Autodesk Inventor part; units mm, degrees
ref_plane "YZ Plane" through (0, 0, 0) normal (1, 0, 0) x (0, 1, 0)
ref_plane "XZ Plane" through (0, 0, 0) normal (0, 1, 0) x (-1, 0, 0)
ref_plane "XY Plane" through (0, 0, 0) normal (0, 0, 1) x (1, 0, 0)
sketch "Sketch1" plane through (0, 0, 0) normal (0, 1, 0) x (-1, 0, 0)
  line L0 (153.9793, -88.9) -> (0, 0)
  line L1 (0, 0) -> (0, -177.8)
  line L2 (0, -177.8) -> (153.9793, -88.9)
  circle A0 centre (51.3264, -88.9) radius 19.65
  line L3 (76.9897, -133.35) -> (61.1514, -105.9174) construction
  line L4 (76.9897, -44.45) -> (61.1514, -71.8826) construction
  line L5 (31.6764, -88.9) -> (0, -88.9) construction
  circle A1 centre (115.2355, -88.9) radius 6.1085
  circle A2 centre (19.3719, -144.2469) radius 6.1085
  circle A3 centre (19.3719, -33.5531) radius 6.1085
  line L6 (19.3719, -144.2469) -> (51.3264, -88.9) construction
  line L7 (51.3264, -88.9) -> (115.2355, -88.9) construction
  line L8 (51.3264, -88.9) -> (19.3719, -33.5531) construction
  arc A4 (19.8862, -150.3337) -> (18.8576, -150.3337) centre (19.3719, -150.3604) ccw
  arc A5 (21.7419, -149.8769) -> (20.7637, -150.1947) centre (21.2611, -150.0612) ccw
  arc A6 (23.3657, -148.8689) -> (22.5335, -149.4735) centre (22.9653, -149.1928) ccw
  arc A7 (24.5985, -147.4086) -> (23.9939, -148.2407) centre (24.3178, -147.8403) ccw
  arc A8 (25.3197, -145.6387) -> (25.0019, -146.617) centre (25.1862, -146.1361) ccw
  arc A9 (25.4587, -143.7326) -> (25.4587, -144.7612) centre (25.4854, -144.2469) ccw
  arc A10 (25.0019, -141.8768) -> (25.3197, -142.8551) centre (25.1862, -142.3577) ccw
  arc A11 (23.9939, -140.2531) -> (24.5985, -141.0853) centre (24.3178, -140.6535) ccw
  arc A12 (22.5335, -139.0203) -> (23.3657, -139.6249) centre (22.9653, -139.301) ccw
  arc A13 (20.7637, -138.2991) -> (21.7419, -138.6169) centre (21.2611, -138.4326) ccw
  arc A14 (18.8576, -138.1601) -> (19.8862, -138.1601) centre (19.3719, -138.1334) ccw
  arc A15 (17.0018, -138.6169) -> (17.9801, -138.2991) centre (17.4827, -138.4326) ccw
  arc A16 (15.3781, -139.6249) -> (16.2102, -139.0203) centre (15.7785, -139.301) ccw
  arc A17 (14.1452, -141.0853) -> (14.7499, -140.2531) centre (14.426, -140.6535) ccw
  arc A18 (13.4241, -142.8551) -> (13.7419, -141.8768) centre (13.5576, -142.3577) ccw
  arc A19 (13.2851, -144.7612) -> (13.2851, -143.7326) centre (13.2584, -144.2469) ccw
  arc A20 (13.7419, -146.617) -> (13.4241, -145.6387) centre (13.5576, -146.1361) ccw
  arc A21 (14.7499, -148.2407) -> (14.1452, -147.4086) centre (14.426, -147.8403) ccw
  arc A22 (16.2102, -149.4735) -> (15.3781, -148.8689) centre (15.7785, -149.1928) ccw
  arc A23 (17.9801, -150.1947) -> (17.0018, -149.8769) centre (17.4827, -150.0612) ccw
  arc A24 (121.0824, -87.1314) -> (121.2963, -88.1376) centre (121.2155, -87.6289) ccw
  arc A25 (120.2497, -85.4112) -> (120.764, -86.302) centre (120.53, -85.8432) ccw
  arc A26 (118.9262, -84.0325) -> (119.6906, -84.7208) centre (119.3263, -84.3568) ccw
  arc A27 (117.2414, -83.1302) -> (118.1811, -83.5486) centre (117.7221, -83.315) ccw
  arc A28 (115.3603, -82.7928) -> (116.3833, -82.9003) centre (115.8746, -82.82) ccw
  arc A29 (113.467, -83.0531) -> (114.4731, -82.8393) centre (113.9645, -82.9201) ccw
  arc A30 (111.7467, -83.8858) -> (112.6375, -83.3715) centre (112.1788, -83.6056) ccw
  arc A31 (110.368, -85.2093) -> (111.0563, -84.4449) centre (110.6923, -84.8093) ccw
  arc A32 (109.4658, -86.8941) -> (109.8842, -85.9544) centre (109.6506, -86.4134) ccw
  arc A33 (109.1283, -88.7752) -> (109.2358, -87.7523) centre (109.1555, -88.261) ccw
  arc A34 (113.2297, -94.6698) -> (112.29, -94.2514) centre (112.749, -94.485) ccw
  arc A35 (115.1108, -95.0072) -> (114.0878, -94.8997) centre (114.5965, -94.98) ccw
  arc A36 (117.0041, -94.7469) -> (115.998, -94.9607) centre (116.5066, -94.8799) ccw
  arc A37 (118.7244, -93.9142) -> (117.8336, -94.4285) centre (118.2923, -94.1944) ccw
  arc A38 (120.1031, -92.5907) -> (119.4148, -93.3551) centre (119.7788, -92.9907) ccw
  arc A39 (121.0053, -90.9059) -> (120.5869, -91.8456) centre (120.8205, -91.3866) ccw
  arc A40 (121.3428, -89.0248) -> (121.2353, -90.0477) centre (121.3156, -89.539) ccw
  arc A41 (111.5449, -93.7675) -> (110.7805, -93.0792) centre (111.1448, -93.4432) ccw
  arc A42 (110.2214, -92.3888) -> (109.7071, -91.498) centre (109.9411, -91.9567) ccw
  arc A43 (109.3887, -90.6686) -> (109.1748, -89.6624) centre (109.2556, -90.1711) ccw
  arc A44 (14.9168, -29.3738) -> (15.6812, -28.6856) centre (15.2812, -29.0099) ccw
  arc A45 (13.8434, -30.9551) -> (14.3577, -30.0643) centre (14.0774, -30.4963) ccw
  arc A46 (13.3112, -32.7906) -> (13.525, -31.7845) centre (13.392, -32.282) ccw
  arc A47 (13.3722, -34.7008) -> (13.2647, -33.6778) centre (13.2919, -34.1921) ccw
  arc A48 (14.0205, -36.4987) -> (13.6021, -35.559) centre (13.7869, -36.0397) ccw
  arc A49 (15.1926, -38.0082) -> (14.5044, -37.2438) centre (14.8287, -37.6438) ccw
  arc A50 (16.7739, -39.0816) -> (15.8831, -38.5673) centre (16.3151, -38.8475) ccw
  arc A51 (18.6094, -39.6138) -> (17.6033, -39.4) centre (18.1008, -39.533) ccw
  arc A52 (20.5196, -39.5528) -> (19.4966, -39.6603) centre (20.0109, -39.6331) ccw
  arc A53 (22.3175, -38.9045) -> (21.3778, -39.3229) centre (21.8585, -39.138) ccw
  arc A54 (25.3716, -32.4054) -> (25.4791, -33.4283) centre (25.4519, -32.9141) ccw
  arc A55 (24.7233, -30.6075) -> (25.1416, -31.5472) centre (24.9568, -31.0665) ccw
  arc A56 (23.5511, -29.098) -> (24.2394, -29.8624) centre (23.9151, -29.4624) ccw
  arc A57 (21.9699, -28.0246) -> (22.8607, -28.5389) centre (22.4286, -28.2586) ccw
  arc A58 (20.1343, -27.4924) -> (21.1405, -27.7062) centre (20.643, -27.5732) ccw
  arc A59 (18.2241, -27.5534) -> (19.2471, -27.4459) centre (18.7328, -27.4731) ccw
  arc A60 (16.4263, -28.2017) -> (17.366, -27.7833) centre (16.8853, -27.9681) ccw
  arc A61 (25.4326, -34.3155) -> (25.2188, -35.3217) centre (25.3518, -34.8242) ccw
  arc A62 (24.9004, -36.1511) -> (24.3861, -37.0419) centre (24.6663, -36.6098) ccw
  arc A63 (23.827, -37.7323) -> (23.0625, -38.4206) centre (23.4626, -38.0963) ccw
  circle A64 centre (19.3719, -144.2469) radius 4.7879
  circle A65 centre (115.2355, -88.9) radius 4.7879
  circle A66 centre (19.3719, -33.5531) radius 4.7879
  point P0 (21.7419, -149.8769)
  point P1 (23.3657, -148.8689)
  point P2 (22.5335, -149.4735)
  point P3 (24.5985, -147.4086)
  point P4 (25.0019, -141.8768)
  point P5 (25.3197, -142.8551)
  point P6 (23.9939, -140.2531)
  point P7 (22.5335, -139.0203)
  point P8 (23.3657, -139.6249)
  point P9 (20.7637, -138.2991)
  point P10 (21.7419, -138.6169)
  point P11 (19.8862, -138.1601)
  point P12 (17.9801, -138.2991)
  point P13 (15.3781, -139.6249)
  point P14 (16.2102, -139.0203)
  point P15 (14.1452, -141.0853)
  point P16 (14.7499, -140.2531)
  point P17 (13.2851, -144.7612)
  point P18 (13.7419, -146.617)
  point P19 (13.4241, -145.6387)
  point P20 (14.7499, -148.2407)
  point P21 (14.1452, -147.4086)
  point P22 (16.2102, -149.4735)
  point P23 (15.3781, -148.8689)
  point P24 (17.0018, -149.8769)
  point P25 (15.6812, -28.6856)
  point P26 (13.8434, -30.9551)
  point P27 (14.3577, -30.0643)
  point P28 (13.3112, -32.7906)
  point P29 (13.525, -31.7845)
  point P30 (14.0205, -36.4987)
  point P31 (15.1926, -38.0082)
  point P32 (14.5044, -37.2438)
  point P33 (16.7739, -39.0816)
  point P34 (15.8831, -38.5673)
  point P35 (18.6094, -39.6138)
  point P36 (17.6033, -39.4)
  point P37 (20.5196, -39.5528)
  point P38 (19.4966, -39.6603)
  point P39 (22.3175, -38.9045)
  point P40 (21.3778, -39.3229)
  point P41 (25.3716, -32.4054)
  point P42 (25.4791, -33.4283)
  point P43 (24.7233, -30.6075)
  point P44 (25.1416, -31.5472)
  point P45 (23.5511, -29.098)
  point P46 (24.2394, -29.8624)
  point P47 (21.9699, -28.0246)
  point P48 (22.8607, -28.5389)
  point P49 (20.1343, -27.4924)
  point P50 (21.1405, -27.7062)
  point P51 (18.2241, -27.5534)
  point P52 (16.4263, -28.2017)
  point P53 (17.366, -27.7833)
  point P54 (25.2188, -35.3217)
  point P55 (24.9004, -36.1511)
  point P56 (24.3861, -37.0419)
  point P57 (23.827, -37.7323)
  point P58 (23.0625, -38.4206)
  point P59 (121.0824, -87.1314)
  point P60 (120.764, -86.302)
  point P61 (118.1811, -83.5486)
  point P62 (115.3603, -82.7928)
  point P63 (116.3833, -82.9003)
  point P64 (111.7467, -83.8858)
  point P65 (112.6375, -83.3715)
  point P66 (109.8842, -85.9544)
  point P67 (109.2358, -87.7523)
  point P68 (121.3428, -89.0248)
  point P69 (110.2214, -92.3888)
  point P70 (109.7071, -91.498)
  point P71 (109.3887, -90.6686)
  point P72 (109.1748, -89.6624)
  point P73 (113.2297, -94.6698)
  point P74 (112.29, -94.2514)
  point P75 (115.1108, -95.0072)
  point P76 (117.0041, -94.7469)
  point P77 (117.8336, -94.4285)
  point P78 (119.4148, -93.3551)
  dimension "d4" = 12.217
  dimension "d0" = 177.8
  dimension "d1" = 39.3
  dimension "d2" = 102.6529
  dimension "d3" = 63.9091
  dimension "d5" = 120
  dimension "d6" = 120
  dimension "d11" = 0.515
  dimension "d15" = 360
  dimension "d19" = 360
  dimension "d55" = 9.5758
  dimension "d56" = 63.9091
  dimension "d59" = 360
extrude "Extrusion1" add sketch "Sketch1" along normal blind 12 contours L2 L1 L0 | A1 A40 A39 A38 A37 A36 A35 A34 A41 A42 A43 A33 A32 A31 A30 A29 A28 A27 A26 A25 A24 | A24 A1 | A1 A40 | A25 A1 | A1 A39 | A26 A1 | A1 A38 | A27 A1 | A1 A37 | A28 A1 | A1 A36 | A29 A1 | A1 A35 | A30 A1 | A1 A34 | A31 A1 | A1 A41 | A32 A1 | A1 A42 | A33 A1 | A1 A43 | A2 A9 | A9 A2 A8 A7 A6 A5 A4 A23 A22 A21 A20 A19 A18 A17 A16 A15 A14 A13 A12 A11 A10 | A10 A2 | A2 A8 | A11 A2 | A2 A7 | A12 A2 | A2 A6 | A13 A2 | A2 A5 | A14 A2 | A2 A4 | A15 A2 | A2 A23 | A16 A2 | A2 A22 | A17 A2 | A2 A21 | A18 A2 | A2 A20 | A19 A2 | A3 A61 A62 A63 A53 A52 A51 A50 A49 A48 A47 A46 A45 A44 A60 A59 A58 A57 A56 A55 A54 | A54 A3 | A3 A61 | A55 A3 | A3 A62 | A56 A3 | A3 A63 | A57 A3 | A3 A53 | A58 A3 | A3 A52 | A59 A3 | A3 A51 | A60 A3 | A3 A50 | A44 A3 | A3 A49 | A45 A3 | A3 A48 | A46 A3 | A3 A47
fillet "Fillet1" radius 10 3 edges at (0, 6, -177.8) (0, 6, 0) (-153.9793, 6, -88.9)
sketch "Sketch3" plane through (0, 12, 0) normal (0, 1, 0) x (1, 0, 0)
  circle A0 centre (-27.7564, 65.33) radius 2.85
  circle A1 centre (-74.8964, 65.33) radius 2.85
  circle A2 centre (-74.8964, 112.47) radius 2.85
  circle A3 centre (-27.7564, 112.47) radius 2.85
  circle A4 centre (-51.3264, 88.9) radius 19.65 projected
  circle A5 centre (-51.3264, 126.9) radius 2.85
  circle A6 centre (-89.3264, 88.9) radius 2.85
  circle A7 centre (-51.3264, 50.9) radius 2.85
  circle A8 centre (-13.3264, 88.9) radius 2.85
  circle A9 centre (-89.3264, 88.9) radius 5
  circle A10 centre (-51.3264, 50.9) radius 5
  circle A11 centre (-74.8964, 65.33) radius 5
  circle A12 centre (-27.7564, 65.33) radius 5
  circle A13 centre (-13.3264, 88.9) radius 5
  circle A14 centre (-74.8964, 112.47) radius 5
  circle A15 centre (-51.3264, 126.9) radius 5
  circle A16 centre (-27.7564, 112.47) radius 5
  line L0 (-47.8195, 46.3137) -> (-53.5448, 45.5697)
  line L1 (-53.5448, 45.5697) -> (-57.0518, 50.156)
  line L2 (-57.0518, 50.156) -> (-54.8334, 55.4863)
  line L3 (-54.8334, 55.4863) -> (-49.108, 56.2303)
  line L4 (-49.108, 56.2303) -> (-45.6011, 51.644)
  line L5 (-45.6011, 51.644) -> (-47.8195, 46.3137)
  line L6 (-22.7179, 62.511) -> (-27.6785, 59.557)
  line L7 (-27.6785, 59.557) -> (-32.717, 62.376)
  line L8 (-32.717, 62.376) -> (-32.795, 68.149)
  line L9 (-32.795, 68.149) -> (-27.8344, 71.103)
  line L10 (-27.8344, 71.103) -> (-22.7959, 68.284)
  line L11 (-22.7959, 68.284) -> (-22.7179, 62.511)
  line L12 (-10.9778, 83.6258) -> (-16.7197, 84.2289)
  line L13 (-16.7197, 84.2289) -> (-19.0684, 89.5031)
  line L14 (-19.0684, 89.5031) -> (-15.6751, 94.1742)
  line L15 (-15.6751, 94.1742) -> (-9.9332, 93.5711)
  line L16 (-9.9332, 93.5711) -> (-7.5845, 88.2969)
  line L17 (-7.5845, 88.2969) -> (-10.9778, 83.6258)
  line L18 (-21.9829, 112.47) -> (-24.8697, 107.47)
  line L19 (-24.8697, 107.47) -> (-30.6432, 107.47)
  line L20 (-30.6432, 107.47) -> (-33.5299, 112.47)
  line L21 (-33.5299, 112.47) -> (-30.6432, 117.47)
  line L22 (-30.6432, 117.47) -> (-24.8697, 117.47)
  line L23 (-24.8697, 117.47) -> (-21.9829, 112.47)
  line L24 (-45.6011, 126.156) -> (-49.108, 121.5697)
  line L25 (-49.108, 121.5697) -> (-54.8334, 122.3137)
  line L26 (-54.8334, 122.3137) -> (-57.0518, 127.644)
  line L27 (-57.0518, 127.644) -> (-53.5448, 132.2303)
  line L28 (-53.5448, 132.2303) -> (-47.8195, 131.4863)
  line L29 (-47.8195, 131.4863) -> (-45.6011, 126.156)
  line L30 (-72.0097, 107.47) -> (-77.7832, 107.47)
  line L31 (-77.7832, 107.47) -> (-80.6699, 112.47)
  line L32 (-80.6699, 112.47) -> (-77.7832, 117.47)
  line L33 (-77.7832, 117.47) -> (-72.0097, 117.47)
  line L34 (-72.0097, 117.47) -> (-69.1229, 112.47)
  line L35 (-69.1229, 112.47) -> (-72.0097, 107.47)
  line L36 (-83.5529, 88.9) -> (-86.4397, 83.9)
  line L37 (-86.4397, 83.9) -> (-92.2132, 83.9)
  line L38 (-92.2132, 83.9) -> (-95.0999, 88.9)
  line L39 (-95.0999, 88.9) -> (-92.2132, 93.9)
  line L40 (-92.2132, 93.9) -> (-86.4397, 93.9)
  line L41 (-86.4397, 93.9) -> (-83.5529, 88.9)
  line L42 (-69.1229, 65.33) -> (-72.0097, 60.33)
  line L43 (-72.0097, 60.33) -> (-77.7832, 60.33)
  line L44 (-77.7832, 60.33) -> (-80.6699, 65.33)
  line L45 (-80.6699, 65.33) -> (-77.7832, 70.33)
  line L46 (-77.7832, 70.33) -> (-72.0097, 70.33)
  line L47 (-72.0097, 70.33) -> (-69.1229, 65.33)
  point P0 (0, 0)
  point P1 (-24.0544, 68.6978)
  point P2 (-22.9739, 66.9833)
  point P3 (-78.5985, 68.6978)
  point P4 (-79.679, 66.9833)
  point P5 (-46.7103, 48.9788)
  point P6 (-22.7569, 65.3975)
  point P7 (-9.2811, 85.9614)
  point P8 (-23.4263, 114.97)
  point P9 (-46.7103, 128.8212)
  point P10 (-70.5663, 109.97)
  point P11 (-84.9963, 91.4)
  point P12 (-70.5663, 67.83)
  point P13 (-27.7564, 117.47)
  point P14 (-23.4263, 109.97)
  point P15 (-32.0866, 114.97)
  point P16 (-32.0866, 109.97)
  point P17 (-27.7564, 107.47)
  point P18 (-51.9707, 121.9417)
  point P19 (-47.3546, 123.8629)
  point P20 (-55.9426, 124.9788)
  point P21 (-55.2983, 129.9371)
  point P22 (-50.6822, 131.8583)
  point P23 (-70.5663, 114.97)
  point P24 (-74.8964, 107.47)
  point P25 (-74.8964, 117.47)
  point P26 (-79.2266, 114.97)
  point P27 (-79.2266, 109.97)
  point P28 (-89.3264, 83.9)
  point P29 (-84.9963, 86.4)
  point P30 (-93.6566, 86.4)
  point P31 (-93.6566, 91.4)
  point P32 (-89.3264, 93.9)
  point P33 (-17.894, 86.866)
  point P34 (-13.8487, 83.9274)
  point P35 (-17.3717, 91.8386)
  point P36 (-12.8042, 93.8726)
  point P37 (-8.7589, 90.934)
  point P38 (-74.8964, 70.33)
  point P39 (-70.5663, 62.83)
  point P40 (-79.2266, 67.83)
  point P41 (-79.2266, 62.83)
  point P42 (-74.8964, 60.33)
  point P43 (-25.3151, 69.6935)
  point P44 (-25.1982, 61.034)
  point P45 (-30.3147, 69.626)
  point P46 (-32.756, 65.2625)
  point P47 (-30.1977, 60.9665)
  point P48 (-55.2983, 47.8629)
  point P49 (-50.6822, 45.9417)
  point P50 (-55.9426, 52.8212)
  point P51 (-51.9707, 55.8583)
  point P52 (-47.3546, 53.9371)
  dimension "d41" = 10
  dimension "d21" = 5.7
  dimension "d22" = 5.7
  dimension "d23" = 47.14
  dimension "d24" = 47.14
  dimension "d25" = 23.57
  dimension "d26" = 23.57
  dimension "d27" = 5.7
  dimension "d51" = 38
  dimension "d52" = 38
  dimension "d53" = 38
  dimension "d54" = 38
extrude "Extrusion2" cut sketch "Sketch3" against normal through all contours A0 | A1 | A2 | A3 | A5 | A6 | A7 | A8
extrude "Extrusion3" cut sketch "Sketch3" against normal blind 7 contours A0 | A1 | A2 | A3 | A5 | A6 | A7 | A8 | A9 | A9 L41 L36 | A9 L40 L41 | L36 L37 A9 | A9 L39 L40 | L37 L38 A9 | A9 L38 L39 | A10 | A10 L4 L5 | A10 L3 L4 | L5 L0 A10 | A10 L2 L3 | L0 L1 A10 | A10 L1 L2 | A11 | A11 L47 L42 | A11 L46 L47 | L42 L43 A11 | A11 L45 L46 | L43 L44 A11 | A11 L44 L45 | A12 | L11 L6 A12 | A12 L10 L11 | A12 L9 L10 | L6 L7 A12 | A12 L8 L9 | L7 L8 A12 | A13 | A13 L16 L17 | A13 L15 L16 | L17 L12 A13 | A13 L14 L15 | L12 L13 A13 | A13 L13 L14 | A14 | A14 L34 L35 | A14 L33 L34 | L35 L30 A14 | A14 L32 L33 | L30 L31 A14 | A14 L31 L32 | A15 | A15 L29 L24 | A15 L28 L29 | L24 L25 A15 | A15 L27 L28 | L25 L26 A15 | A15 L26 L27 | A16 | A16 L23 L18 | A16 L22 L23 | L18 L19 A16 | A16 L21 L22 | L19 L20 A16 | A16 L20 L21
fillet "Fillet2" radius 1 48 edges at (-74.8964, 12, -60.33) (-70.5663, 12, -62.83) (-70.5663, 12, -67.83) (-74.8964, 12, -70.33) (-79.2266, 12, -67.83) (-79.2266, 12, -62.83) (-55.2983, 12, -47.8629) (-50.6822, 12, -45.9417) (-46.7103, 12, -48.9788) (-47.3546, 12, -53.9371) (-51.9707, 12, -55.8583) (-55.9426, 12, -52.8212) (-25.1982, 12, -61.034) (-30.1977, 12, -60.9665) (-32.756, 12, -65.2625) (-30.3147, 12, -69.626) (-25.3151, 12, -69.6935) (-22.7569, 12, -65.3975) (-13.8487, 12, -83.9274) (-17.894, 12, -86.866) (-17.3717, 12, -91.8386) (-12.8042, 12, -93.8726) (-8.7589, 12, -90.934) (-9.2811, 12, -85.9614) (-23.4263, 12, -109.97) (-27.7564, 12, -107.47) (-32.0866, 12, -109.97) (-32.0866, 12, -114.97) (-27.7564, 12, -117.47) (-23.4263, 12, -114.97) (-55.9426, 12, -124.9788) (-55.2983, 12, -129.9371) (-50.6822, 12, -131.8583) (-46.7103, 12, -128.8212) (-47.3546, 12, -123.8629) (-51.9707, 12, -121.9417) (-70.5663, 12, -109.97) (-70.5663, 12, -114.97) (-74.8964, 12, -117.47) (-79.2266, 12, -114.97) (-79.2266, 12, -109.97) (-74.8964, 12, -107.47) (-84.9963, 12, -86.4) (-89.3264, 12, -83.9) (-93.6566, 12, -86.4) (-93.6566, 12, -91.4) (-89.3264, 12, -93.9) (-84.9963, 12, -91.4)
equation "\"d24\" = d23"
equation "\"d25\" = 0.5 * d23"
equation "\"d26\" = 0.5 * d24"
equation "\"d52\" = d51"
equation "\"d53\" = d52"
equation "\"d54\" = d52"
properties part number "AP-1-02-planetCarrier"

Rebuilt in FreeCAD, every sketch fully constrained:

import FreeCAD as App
import Part
import Sketcher


def edges_at(feature, points):
    """Names of the edges that pass closest to the given points."""
    edges = feature.Shape.Edges
    near = lambda p: min(range(len(edges)), key=lambda i: edges[i].distToShape(Part.Vertex(*p))[0])
    return sorted({f"Edge{near(p) + 1}" for p in points})

doc = App.newDocument("Part")
body = doc.addObject("PartDesign::Body", "Body")

# Sketch on XZ plane
sketch1 = body.newObject("Sketcher::SketchObject", "Sketch")
sketch1.AttachmentSupport = (doc.getObject("XZ_Plane"), [""])
sketch1.MapMode = "FlatFace"
sketch1.addGeometry(Part.LineSegment(App.Vector(0, -177.8, 0), App.Vector(-154, -88.9, 0)), False)
sketch1.addGeometry(Part.LineSegment(App.Vector(-154, -88.9, 0), App.Vector(0, 0, 0)), False)
sketch1.addGeometry(Part.LineSegment(App.Vector(0, 0, 0), App.Vector(0, -177.8, 0)), False)
sketch1.addGeometry(Part.Circle(App.Vector(-51.3, -88.9, 0), App.Vector(0, 0, 1), 19.6), False)
sketch1.addGeometry(Part.Circle(App.Vector(-19.4, -144.2, 0), App.Vector(0, 0, 1), 4.8), False)
sketch1.addGeometry(Part.Circle(App.Vector(-115.2, -88.9, 0), App.Vector(0, 0, 1), 4.8), False)
sketch1.addGeometry(Part.Circle(App.Vector(-19.4, -33.6, 0), App.Vector(0, 0, 1), 4.8), False)
sketch1.addConstraint(Sketcher.Constraint("Coincident", 0, 2, 1, 1))
sketch1.addConstraint(Sketcher.Constraint("Coincident", 1, 2, 2, 1))
sketch1.addConstraint(Sketcher.Constraint("Coincident", 2, 2, 0, 1))
sketch1.addConstraint(Sketcher.Constraint("Vertical", 2))
sketch1.addConstraint(Sketcher.Constraint("Coincident", 1, 2, -1, 1))
sketch1.addConstraint(Sketcher.Constraint("Equal", 4, 5))
sketch1.addConstraint(Sketcher.Constraint("Equal", 5, 6))
sketch1.addConstraint(Sketcher.Constraint("Horizontal", 3, 3, 5, 3))
sketch1.addConstraint(Sketcher.Constraint("Horizontal", 5, 3, 0, 2))
sketch1.addConstraint(Sketcher.Constraint("Vertical", 4, 3, 6, 3))
sketch1.addConstraint(Sketcher.Constraint("Equal", 0, 1))
sketch1.addConstraint(Sketcher.Constraint("Diameter", 3, 39.3))
sketch1.addConstraint(Sketcher.Constraint("DistanceY", 2, 2, 2, 1, 177.8))
sketch1.addConstraint(Sketcher.Constraint("Distance", 0, 177.8))
sketch1.addConstraint(Sketcher.Constraint("Diameter", 4, 9.5758))
sketch1.addConstraint(Sketcher.Constraint("DistanceX", 5, 3, 3, 3, 63.909))
sketch1.addConstraint(Sketcher.Constraint("DistanceX", 0, 2, 3, 3, 102.653))
sketch1.addConstraint(Sketcher.Constraint("DistanceX", 4, 3, -1, 1, 19.372))
sketch1.addConstraint(Sketcher.Constraint("DistanceY", 4, 3, -1, 1, 144.247))
sketch1.addConstraint(Sketcher.Constraint("DistanceY", 6, 3, -1, 1, 33.553))
pad1 = body.newObject("PartDesign::Pad", "Pad")
pad1.Profile = sketch1
pad1.Length = 12
pad1.Reversed = True
doc.recompute()

fillet = body.newObject("PartDesign::Fillet", "Fillet")
fillet.Base = (pad1, edges_at(pad1, [(0, 6, -177.8), (0, 6, 0), (-153.979, 6, -88.9)]))
fillet.Radius = 10

# Sketch on XZ plane
sketch2 = body.newObject("Sketcher::SketchObject", "Sketch001")
sketch2.AttachmentSupport = (doc.getObject("XZ_Plane"), [""])
sketch2.MapMode = "FlatFace"
sketch2.AttachmentOffset = App.Placement(App.Vector(0, 0, -12), App.Rotation())
sketch2.addGeometry(Part.Circle(App.Vector(-27.8, -65.3, 0), App.Vector(0, 0, 1), 2.9), False)
sketch2.addGeometry(Part.Circle(App.Vector(-74.9, -65.3, 0), App.Vector(0, 0, 1), 2.9), False)
sketch2.addGeometry(Part.Circle(App.Vector(-74.9, -112.5, 0), App.Vector(0, 0, 1), 2.9), False)
sketch2.addGeometry(Part.Circle(App.Vector(-27.8, -112.5, 0), App.Vector(0, 0, 1), 2.9), False)
sketch2.addGeometry(Part.Circle(App.Vector(-51.3, -126.9, 0), App.Vector(0, 0, 1), 2.9), False)
sketch2.addGeometry(Part.Circle(App.Vector(-89.3, -88.9, 0), App.Vector(0, 0, 1), 2.9), False)
sketch2.addGeometry(Part.Circle(App.Vector(-51.3, -50.9, 0), App.Vector(0, 0, 1), 2.9), False)
sketch2.addGeometry(Part.Circle(App.Vector(-13.3, -88.9, 0), App.Vector(0, 0, 1), 2.9), False)
sketch2.addConstraint(Sketcher.Constraint("Equal", 0, 1))
sketch2.addConstraint(Sketcher.Constraint("Equal", 1, 2))
sketch2.addConstraint(Sketcher.Constraint("Equal", 2, 3))
sketch2.addConstraint(Sketcher.Constraint("Equal", 3, 4))
sketch2.addConstraint(Sketcher.Constraint("Equal", 4, 5))
sketch2.addConstraint(Sketcher.Constraint("Equal", 5, 6))
sketch2.addConstraint(Sketcher.Constraint("Equal", 6, 7))
sketch2.addConstraint(Sketcher.Constraint("Horizontal", 0, 3, 1, 3))
sketch2.addConstraint(Sketcher.Constraint("Horizontal", 2, 3, 3, 3))
sketch2.addConstraint(Sketcher.Constraint("Horizontal", 5, 3, 7, 3))
sketch2.addConstraint(Sketcher.Constraint("Vertical", 1, 3, 2, 3))
sketch2.addConstraint(Sketcher.Constraint("Vertical", 0, 3, 3, 3))
sketch2.addConstraint(Sketcher.Constraint("Vertical", 4, 3, 6, 3))
sketch2.addConstraint(Sketcher.Constraint("Diameter", 0, 5.7))
sketch2.addConstraint(Sketcher.Constraint("DistanceX", 5, 3, 4, 3, 38.0))
sketch2.addConstraint(Sketcher.Constraint("DistanceY", 4, 3, 5, 3, 38.0))
sketch2.addConstraint(Sketcher.Constraint("DistanceY", 5, 3, 6, 3, 38.0))
sketch2.addConstraint(Sketcher.Constraint("DistanceX", 4, 3, 7, 3, 38.0))
sketch2.addConstraint(Sketcher.Constraint("DistanceX", 1, 3, 0, 3, 47.14))
sketch2.addConstraint(Sketcher.Constraint("DistanceY", 2, 3, 1, 3, 47.14))
sketch2.addConstraint(Sketcher.Constraint("DistanceX", 2, 3, 4, 3, 23.57))
sketch2.addConstraint(Sketcher.Constraint("DistanceY", 2, 3, 5, 3, 23.57))
sketch2.addConstraint(Sketcher.Constraint("DistanceY", 4, 3, -1, 1, 126.9))
sketch2.addConstraint(Sketcher.Constraint("DistanceX", 0, 3, -1, 1, 27.7564))
pocket1 = body.newObject("PartDesign::Pocket", "Pocket")
pocket1.Profile = sketch2
pocket1.Type = "ThroughAll"
pocket1.Reversed = True

# Sketch on XZ plane
sketch3 = body.newObject("Sketcher::SketchObject", "Sketch002")
sketch3.AttachmentSupport = (doc.getObject("XZ_Plane"), [""])
sketch3.MapMode = "FlatFace"
sketch3.AttachmentOffset = App.Placement(App.Vector(0, 0, -12), App.Rotation())
sketch3.addGeometry(Part.LineSegment(App.Vector(-22.7179, -62.511, 0), App.Vector(-22.7959, -68.284, 0)), False)
sketch3.addGeometry(Part.LineSegment(App.Vector(-22.7959, -68.284, 0), App.Vector(-27.8344, -71.103, 0)), False)
sketch3.addGeometry(Part.LineSegment(App.Vector(-27.8344, -71.103, 0), App.Vector(-32.795, -68.149, 0)), False)
sketch3.addGeometry(Part.LineSegment(App.Vector(-32.795, -68.149, 0), App.Vector(-32.717, -62.376, 0)), False)
sketch3.addGeometry(Part.LineSegment(App.Vector(-32.717, -62.376, 0), App.Vector(-27.6785, -59.557, 0)), False)
sketch3.addGeometry(Part.LineSegment(App.Vector(-27.6785, -59.557, 0), App.Vector(-22.7179, -62.511, 0)), False)
sketch3.addGeometry(Part.LineSegment(App.Vector(-69.1229, -65.33, 0), App.Vector(-72.0097, -70.33, 0)), False)
sketch3.addGeometry(Part.LineSegment(App.Vector(-72.0097, -70.33, 0), App.Vector(-77.7832, -70.33, 0)), False)
sketch3.addGeometry(Part.LineSegment(App.Vector(-77.7832, -70.33, 0), App.Vector(-80.6699, -65.33, 0)), False)
sketch3.addGeometry(Part.LineSegment(App.Vector(-80.6699, -65.33, 0), App.Vector(-77.7832, -60.33, 0)), False)
sketch3.addGeometry(Part.LineSegment(App.Vector(-77.7832, -60.33, 0), App.Vector(-72.0097, -60.33, 0)), False)
sketch3.addGeometry(Part.LineSegment(App.Vector(-72.0097, -60.33, 0), App.Vector(-69.1229, -65.33, 0)), False)
sketch3.addGeometry(Part.LineSegment(App.Vector(-69.1229, -112.47, 0), App.Vector(-72.0097, -117.47, 0)), False)
sketch3.addGeometry(Part.LineSegment(App.Vector(-72.0097, -117.47, 0), App.Vector(-77.7832, -117.47, 0)), False)
sketch3.addGeometry(Part.LineSegment(App.Vector(-77.7832, -117.47, 0), App.Vector(-80.6699, -112.47, 0)), False)
sketch3.addGeometry(Part.LineSegment(App.Vector(-80.6699, -112.47, 0), App.Vector(-77.7832, -107.47, 0)), False)
sketch3.addGeometry(Part.LineSegment(App.Vector(-77.7832, -107.47, 0), App.Vector(-72.0097, -107.47, 0)), False)
sketch3.addGeometry(Part.LineSegment(App.Vector(-72.0097, -107.47, 0), App.Vector(-69.1229, -112.47, 0)), False)
sketch3.addGeometry(Part.LineSegment(App.Vector(-21.9829, -112.47, 0), App.Vector(-24.8697, -117.47, 0)), False)
sketch3.addGeometry(Part.LineSegment(App.Vector(-24.8697, -117.47, 0), App.Vector(-30.6432, -117.47, 0)), False)
sketch3.addGeometry(Part.LineSegment(App.Vector(-30.6432, -117.47, 0), App.Vector(-33.5299, -112.47, 0)), False)
sketch3.addGeometry(Part.LineSegment(App.Vector(-33.5299, -112.47, 0), App.Vector(-30.6432, -107.47, 0)), False)
sketch3.addGeometry(Part.LineSegment(App.Vector(-30.6432, -107.47, 0), App.Vector(-24.8697, -107.47, 0)), False)
sketch3.addGeometry(Part.LineSegment(App.Vector(-24.8697, -107.47, 0), App.Vector(-21.9829, -112.47, 0)), False)
sketch3.addGeometry(Part.LineSegment(App.Vector(-45.6011, -126.156, 0), App.Vector(-47.8195, -131.4863, 0)), False)
sketch3.addGeometry(Part.LineSegment(App.Vector(-47.8195, -131.4863, 0), App.Vector(-53.5448, -132.2303, 0)), False)
sketch3.addGeometry(Part.LineSegment(App.Vector(-53.5448, -132.2303, 0), App.Vector(-57.0518, -127.644, 0)), False)
sketch3.addGeometry(Part.LineSegment(App.Vector(-57.0518, -127.644, 0), App.Vector(-54.8334, -122.3137, 0)), False)
sketch3.addGeometry(Part.LineSegment(App.Vector(-54.8334, -122.3137, 0), App.Vector(-49.108, -121.5697, 0)), False)
sketch3.addGeometry(Part.LineSegment(App.Vector(-49.108, -121.5697, 0), App.Vector(-45.6011, -126.156, 0)), False)
sketch3.addGeometry(Part.LineSegment(App.Vector(-83.5529, -88.9, 0), App.Vector(-86.4397, -93.9, 0)), False)
sketch3.addGeometry(Part.LineSegment(App.Vector(-86.4397, -93.9, 0), App.Vector(-92.2132, -93.9, 0)), False)
sketch3.addGeometry(Part.LineSegment(App.Vector(-92.2132, -93.9, 0), App.Vector(-95.0999, -88.9, 0)), False)
sketch3.addGeometry(Part.LineSegment(App.Vector(-95.0999, -88.9, 0), App.Vector(-92.2132, -83.9, 0)), False)
sketch3.addGeometry(Part.LineSegment(App.Vector(-92.2132, -83.9, 0), App.Vector(-86.4397, -83.9, 0)), False)
sketch3.addGeometry(Part.LineSegment(App.Vector(-86.4397, -83.9, 0), App.Vector(-83.5529, -88.9, 0)), False)
sketch3.addGeometry(Part.LineSegment(App.Vector(-45.6011, -51.644, 0), App.Vector(-49.108, -56.2303, 0)), False)
sketch3.addGeometry(Part.LineSegment(App.Vector(-49.108, -56.2303, 0), App.Vector(-54.8334, -55.4863, 0)), False)
sketch3.addGeometry(Part.LineSegment(App.Vector(-54.8334, -55.4863, 0), App.Vector(-57.0518, -50.156, 0)), False)
sketch3.addGeometry(Part.LineSegment(App.Vector(-57.0518, -50.156, 0), App.Vector(-53.5448, -45.5697, 0)), False)
sketch3.addGeometry(Part.LineSegment(App.Vector(-53.5448, -45.5697, 0), App.Vector(-47.8195, -46.3137, 0)), False)
sketch3.addGeometry(Part.LineSegment(App.Vector(-47.8195, -46.3137, 0), App.Vector(-45.6011, -51.644, 0)), False)
sketch3.addGeometry(Part.LineSegment(App.Vector(-7.5845, -88.2969, 0), App.Vector(-9.9332, -93.5711, 0)), False)
sketch3.addGeometry(Part.LineSegment(App.Vector(-9.9332, -93.5711, 0), App.Vector(-15.6751, -94.1742, 0)), False)
sketch3.addGeometry(Part.LineSegment(App.Vector(-15.6751, -94.1742, 0), App.Vector(-19.0684, -89.5031, 0)), False)
sketch3.addGeometry(Part.LineSegment(App.Vector(-19.0684, -89.5031, 0), App.Vector(-16.7197, -84.2289, 0)), False)
sketch3.addGeometry(Part.LineSegment(App.Vector(-16.7197, -84.2289, 0), App.Vector(-10.9778, -83.6258, 0)), False)
sketch3.addGeometry(Part.LineSegment(App.Vector(-10.9778, -83.6258, 0), App.Vector(-7.5845, -88.2969, 0)), False)
sketch3.addConstraint(Sketcher.Constraint("Coincident", 0, 2, 1, 1))
sketch3.addConstraint(Sketcher.Constraint("Coincident", 1, 2, 2, 1))
sketch3.addConstraint(Sketcher.Constraint("Coincident", 2, 2, 3, 1))
sketch3.addConstraint(Sketcher.Constraint("Coincident", 3, 2, 4, 1))
sketch3.addConstraint(Sketcher.Constraint("Coincident", 4, 2, 5, 1))
sketch3.addConstraint(Sketcher.Constraint("Coincident", 5, 2, 0, 1))
sketch3.addConstraint(Sketcher.Constraint("Coincident", 6, 2, 7, 1))
sketch3.addConstraint(Sketcher.Constraint("Coincident", 7, 2, 8, 1))
sketch3.addConstraint(Sketcher.Constraint("Coincident", 8, 2, 9, 1))
sketch3.addConstraint(Sketcher.Constraint("Coincident", 9, 2, 10, 1))
sketch3.addConstraint(Sketcher.Constraint("Coincident", 10, 2, 11, 1))
sketch3.addConstraint(Sketcher.Constraint("Coincident", 11, 2, 6, 1))
sketch3.addConstraint(Sketcher.Constraint("Coincident", 12, 2, 13, 1))
sketch3.addConstraint(Sketcher.Constraint("Coincident", 13, 2, 14, 1))
sketch3.addConstraint(Sketcher.Constraint("Coincident", 14, 2, 15, 1))
sketch3.addConstraint(Sketcher.Constraint("Coincident", 15, 2, 16, 1))
sketch3.addConstraint(Sketcher.Constraint("Coincident", 16, 2, 17, 1))
sketch3.addConstraint(Sketcher.Constraint("Coincident", 17, 2, 12, 1))
sketch3.addConstraint(Sketcher.Constraint("Coincident", 18, 2, 19, 1))
sketch3.addConstraint(Sketcher.Constraint("Coincident", 19, 2, 20, 1))
sketch3.addConstraint(Sketcher.Constraint("Coincident", 20, 2, 21, 1))
sketch3.addConstraint(Sketcher.Constraint("Coincident", 21, 2, 22, 1))
sketch3.addConstraint(Sketcher.Constraint("Coincident", 22, 2, 23, 1))
sketch3.addConstraint(Sketcher.Constraint("Coincident", 23, 2, 18, 1))
sketch3.addConstraint(Sketcher.Constraint("Coincident", 24, 2, 25, 1))
sketch3.addConstraint(Sketcher.Constraint("Coincident", 25, 2, 26, 1))
sketch3.addConstraint(Sketcher.Constraint("Coincident", 26, 2, 27, 1))
sketch3.addConstraint(Sketcher.Constraint("Coincident", 27, 2, 28, 1))
sketch3.addConstraint(Sketcher.Constraint("Coincident", 28, 2, 29, 1))
sketch3.addConstraint(Sketcher.Constraint("Coincident", 29, 2, 24, 1))
sketch3.addConstraint(Sketcher.Constraint("Coincident", 30, 2, 31, 1))
sketch3.addConstraint(Sketcher.Constraint("Coincident", 31, 2, 32, 1))
sketch3.addConstraint(Sketcher.Constraint("Coincident", 32, 2, 33, 1))
sketch3.addConstraint(Sketcher.Constraint("Coincident", 33, 2, 34, 1))
sketch3.addConstraint(Sketcher.Constraint("Coincident", 34, 2, 35, 1))
sketch3.addConstraint(Sketcher.Constraint("Coincident", 35, 2, 30, 1))
sketch3.addConstraint(Sketcher.Constraint("Coincident", 36, 2, 37, 1))
sketch3.addConstraint(Sketcher.Constraint("Coincident", 37, 2, 38, 1))
sketch3.addConstraint(Sketcher.Constraint("Coincident", 38, 2, 39, 1))
sketch3.addConstraint(Sketcher.Constraint("Coincident", 39, 2, 40, 1))
sketch3.addConstraint(Sketcher.Constraint("Coincident", 40, 2, 41, 1))
sketch3.addConstraint(Sketcher.Constraint("Coincident", 41, 2, 36, 1))
sketch3.addConstraint(Sketcher.Constraint("Coincident", 42, 2, 43, 1))
sketch3.addConstraint(Sketcher.Constraint("Coincident", 43, 2, 44, 1))
sketch3.addConstraint(Sketcher.Constraint("Coincident", 44, 2, 45, 1))
sketch3.addConstraint(Sketcher.Constraint("Coincident", 45, 2, 46, 1))
sketch3.addConstraint(Sketcher.Constraint("Coincident", 46, 2, 47, 1))
sketch3.addConstraint(Sketcher.Constraint("Coincident", 47, 2, 42, 1))
sketch3.addConstraint(Sketcher.Constraint("Horizontal", 7))
sketch3.addConstraint(Sketcher.Constraint("Horizontal", 10))
sketch3.addConstraint(Sketcher.Constraint("Horizontal", 13))
sketch3.addConstraint(Sketcher.Constraint("Horizontal", 16))
sketch3.addConstraint(Sketcher.Constraint("Horizontal", 19))
sketch3.addConstraint(Sketcher.Constraint("Horizontal", 22))
sketch3.addConstraint(Sketcher.Constraint("Horizontal", 31))
sketch3.addConstraint(Sketcher.Constraint("Horizontal", 34))
sketch3.addConstraint(Sketcher.Constraint("DistanceY", 7, 2, 9, 2, 10.0))
sketch3.addConstraint(Sketcher.Constraint("DistanceY", 13, 2, 15, 2, 10.0))
sketch3.addConstraint(Sketcher.Constraint("DistanceY", 18, 2, 16, 2, 10.0))
sketch3.addConstraint(Sketcher.Constraint("DistanceY", 19, 2, 21, 2, 10.0))
sketch3.addConstraint(Sketcher.Constraint("DistanceY", 31, 2, 33, 2, 10.0))
sketch3.addConstraint(Sketcher.Constraint("DistanceY", 12, 2, 6, 2, 47.14))
sketch3.addConstraint(Sketcher.Constraint("DistanceY", 14, 2, 8, 2, 47.14))
sketch3.addConstraint(Sketcher.Constraint("DistanceX", 12, 2, 18, 2, 47.14))
sketch3.addConstraint(Sketcher.Constraint("DistanceX", 16, 2, 18, 2, 47.14))
sketch3.addConstraint(Sketcher.Constraint("DistanceY", 13, 2, 30, 2, 23.57))
sketch3.addConstraint(Sketcher.Constraint("DistanceY", 14, 2, 32, 2, 23.57))
sketch3.addConstraint(Sketcher.Constraint("DistanceY", 7, 2, 8, 2, 5.0))
sketch3.addConstraint(Sketcher.Constraint("DistanceY", 6, 2, 11, 2, 5.0))
sketch3.addConstraint(Sketcher.Constraint("DistanceY", 12, 2, 17, 2, 5.0))
sketch3.addConstraint(Sketcher.Constraint("DistanceY", 19, 2, 20, 2, 5.0))
sketch3.addConstraint(Sketcher.Constraint("DistanceY", 18, 2, 23, 2, 5.0))
sketch3.addConstraint(Sketcher.Constraint("DistanceY", 30, 2, 35, 2, 5.0))
sketch3.addConstraint(Sketcher.Constraint("DistanceY", 30, 2, -1, 1, 93.9))
sketch3.addConstraint(Sketcher.Constraint("DistanceX", 32, 2, -1, 1, 95.1))
sketch3.addConstraint(Sketcher.Constraint("DistanceY", 44, 2, 1, 2, 18.4))
sketch3.addConstraint(Sketcher.Constraint("DistanceX", 8, 2, -1, 1, 80.67))
sketch3.addConstraint(Sketcher.Constraint("DistanceX", 14, 2, -1, 1, 80.67))
sketch3.addConstraint(Sketcher.Constraint("DistanceX", 20, 2, -1, 1, 33.53))
sketch3.addConstraint(Sketcher.Constraint("DistanceX", 30, 2, 16, 2, 14.43))
sketch3.addConstraint(Sketcher.Constraint("DistanceX", 31, 2, 15, 2, 14.43))
sketch3.addConstraint(Sketcher.Constraint("DistanceX", 31, 2, 13, 2, 14.43))
sketch3.addConstraint(Sketcher.Constraint("DistanceX", 33, 2, 7, 2, 14.43))
sketch3.addConstraint(Sketcher.Constraint("DistanceX", 21, 2, 42, 2, 20.71))
sketch3.addConstraint(Sketcher.Constraint("DistanceX", 7, 2, 7, 1, 5.7735))
sketch3.addConstraint(Sketcher.Constraint("DistanceX", 10, 1, 10, 2, 5.7735))
sketch3.addConstraint(Sketcher.Constraint("DistanceX", 13, 2, 13, 1, 5.7735))
sketch3.addConstraint(Sketcher.Constraint("DistanceX", 19, 2, 19, 1, 5.7735))
sketch3.addConstraint(Sketcher.Constraint("DistanceX", 22, 1, 22, 2, 5.7735))
sketch3.addConstraint(Sketcher.Constraint("DistanceX", 34, 1, 34, 2, 5.7735))
sketch3.addConstraint(Sketcher.Constraint("DistanceX", 0, 2, -1, 1, 22.796))
sketch3.addConstraint(Sketcher.Constraint("DistanceY", 0, 2, -1, 1, 68.284))
sketch3.addConstraint(Sketcher.Constraint("DistanceY", 1, 2, -1, 1, 71.103))
sketch3.addConstraint(Sketcher.Constraint("DistanceX", 2, 2, -1, 1, 32.795))
sketch3.addConstraint(Sketcher.Constraint("DistanceY", 2, 2, -1, 1, 68.149))
sketch3.addConstraint(Sketcher.Constraint("DistanceX", 3, 2, -1, 1, 32.717))
sketch3.addConstraint(Sketcher.Constraint("DistanceY", 3, 2, -1, 1, 62.376))
sketch3.addConstraint(Sketcher.Constraint("DistanceY", 4, 2, -1, 1, 59.557))
sketch3.addConstraint(Sketcher.Constraint("DistanceX", 5, 2, -1, 1, 22.718))
sketch3.addConstraint(Sketcher.Constraint("DistanceY", 5, 2, -1, 1, 62.511))
sketch3.addConstraint(Sketcher.Constraint("DistanceX", 11, 2, -1, 1, 69.123))
sketch3.addConstraint(Sketcher.Constraint("DistanceX", 17, 2, -1, 1, 69.123))
sketch3.addConstraint(Sketcher.Constraint("DistanceX", 23, 2, -1, 1, 21.983))
sketch3.addConstraint(Sketcher.Constraint("DistanceY", 26, 2, -1, 1, 127.644))
sketch3.addConstraint(Sketcher.Constraint("DistanceX", 28, 2, -1, 1, 49.108))
sketch3.addConstraint(Sketcher.Constraint("DistanceX", 29, 2, -1, 1, 45.601))
sketch3.addConstraint(Sketcher.Constraint("DistanceY", 29, 2, -1, 1, 126.156))
sketch3.addConstraint(Sketcher.Constraint("DistanceX", 35, 2, -1, 1, 83.553))
sketch3.addConstraint(Sketcher.Constraint("DistanceX", 36, 2, -1, 1, 49.108))
sketch3.addConstraint(Sketcher.Constraint("DistanceY", 38, 2, -1, 1, 50.156))
sketch3.addConstraint(Sketcher.Constraint("DistanceX", 41, 2, -1, 1, 45.601))
sketch3.addConstraint(Sketcher.Constraint("DistanceY", 41, 2, -1, 1, 51.644))
sketch3.addConstraint(Sketcher.Constraint("DistanceY", 42, 2, -1, 1, 93.571))
sketch3.addConstraint(Sketcher.Constraint("DistanceX", 43, 2, -1, 1, 15.675))
sketch3.addConstraint(Sketcher.Constraint("DistanceY", 45, 2, -1, 1, 84.229))
sketch3.addConstraint(Sketcher.Constraint("DistanceY", 47, 2, -1, 1, 88.297))
sketch3.addConstraint(Sketcher.Constraint("DistanceX", 1, 2, 4, 2, 0.156))
sketch3.addConstraint(Sketcher.Constraint("DistanceY", 25, 2, 24, 2, 0.744))
sketch3.addConstraint(Sketcher.Constraint("DistanceX", 12, 2, 25, 2, 18.465))
sketch3.addConstraint(Sketcher.Constraint("DistanceX", 17, 2, 25, 2, 15.578))
sketch3.addConstraint(Sketcher.Constraint("DistanceX", 26, 2, 25, 2, 3.507))
sketch3.addConstraint(Sketcher.Constraint("DistanceX", 27, 2, 24, 2, 7.014))
sketch3.addConstraint(Sketcher.Constraint("DistanceY", 27, 2, 28, 2, 0.744))
sketch3.addConstraint(Sketcher.Constraint("DistanceY", 36, 2, 37, 2, 0.744))
sketch3.addConstraint(Sketcher.Constraint("DistanceX", 10, 2, 38, 2, 14.958))
sketch3.addConstraint(Sketcher.Constraint("DistanceX", 11, 2, 38, 2, 12.071))
sketch3.addConstraint(Sketcher.Constraint("DistanceX", 38, 2, 39, 2, 3.507))
sketch3.addConstraint(Sketcher.Constraint("DistanceY", 40, 2, 39, 2, 0.744))
sketch3.addConstraint(Sketcher.Constraint("DistanceX", 37, 2, 40, 2, 7.014))
sketch3.addConstraint(Sketcher.Constraint("DistanceX", 43, 2, 42, 2, 5.742))
sketch3.addConstraint(Sketcher.Constraint("DistanceY", 43, 2, 42, 2, 0.603))
sketch3.addConstraint(Sketcher.Constraint("DistanceX", 1, 2, 44, 2, 8.766))
sketch3.addConstraint(Sketcher.Constraint("DistanceX", 45, 2, 46, 2, 5.742))
sketch3.addConstraint(Sketcher.Constraint("DistanceY", 45, 2, 46, 2, 0.603))
sketch3.addConstraint(Sketcher.Constraint("DistanceX", 0, 2, 46, 2, 11.818))
sketch3.addConstraint(Sketcher.Constraint("DistanceX", 44, 2, 47, 2, 11.484))
sketch3.addConstraint(Sketcher.Constraint("Distance", 1, 5.7735))
sketch3.addConstraint(Sketcher.Constraint("Distance", 6, 5.7735))
sketch3.addConstraint(Sketcher.Constraint("Distance", 24, 5.7735))
sketch3.addConstraint(Sketcher.Constraint("Distance", 25, 5.7734))
sketch3.addConstraint(Sketcher.Constraint("Distance", 27, 5.7735))
sketch3.addConstraint(Sketcher.Constraint("Distance", 36, 5.7734))
sketch3.addConstraint(Sketcher.Constraint("Distance", 37, 5.7735))
sketch3.addConstraint(Sketcher.Constraint("Distance", 39, 5.7735))
pocket2 = body.newObject("PartDesign::Pocket", "Pocket001")
pocket2.Profile = sketch3
pocket2.Length = 7
pocket2.Reversed = True
doc.recompute()

fillet2 = body.newObject("PartDesign::Fillet", "Fillet001")
fillet2.Base = (pocket2, edges_at(pocket2, [
    (-74.896, 12, -60.33),
    (-70.566, 12, -62.83),
    (-70.566, 12, -67.83),
    (-74.896, 12, -70.33),
    (-79.227, 12, -67.83),
    (-79.227, 12, -62.83),
    (-55.298, 12, -47.863),
    (-50.682, 12, -45.942),
    (-46.71, 12, -48.979),
    (-47.355, 12, -53.937),
    (-51.971, 12, -55.858),
    (-55.943, 12, -52.821),
    (-25.198, 12, -61.034),
    (-30.198, 12, -60.967),
    (-32.756, 12, -65.263),
    (-30.315, 12, -69.626),
    (-25.315, 12, -69.694),
    (-22.757, 12, -65.397),
    (-13.849, 12, -83.927),
    (-17.894, 12, -86.866),
    (-17.372, 12, -91.839),
    (-12.804, 12, -93.873),
    (-8.759, 12, -90.934),
    (-9.281, 12, -85.961),
    (-23.426, 12, -109.97),
    (-27.756, 12, -107.47),
    (-32.087, 12, -109.97),
    (-32.087, 12, -114.97),
    (-27.756, 12, -117.47),
    (-23.426, 12, -114.97),
    (-55.943, 12, -124.979),
    (-55.298, 12, -129.937),
    (-50.682, 12, -131.858),
    (-46.71, 12, -128.821),
    (-47.355, 12, -123.863),
    (-51.971, 12, -121.942),
    (-70.566, 12, -109.97),
    (-70.566, 12, -114.97),
    (-74.896, 12, -117.47),
    (-79.227, 12, -114.97),
    (-79.227, 12, -109.97),
    (-74.896, 12, -107.47),
    (-84.996, 12, -86.4),
    (-89.326, 12, -83.9),
    (-93.657, 12, -86.4),
    (-93.657, 12, -91.4),
    (-89.326, 12, -93.9),
    (-84.996, 12, -91.4),
]))
fillet2.Radius = 1

doc.recompute()
